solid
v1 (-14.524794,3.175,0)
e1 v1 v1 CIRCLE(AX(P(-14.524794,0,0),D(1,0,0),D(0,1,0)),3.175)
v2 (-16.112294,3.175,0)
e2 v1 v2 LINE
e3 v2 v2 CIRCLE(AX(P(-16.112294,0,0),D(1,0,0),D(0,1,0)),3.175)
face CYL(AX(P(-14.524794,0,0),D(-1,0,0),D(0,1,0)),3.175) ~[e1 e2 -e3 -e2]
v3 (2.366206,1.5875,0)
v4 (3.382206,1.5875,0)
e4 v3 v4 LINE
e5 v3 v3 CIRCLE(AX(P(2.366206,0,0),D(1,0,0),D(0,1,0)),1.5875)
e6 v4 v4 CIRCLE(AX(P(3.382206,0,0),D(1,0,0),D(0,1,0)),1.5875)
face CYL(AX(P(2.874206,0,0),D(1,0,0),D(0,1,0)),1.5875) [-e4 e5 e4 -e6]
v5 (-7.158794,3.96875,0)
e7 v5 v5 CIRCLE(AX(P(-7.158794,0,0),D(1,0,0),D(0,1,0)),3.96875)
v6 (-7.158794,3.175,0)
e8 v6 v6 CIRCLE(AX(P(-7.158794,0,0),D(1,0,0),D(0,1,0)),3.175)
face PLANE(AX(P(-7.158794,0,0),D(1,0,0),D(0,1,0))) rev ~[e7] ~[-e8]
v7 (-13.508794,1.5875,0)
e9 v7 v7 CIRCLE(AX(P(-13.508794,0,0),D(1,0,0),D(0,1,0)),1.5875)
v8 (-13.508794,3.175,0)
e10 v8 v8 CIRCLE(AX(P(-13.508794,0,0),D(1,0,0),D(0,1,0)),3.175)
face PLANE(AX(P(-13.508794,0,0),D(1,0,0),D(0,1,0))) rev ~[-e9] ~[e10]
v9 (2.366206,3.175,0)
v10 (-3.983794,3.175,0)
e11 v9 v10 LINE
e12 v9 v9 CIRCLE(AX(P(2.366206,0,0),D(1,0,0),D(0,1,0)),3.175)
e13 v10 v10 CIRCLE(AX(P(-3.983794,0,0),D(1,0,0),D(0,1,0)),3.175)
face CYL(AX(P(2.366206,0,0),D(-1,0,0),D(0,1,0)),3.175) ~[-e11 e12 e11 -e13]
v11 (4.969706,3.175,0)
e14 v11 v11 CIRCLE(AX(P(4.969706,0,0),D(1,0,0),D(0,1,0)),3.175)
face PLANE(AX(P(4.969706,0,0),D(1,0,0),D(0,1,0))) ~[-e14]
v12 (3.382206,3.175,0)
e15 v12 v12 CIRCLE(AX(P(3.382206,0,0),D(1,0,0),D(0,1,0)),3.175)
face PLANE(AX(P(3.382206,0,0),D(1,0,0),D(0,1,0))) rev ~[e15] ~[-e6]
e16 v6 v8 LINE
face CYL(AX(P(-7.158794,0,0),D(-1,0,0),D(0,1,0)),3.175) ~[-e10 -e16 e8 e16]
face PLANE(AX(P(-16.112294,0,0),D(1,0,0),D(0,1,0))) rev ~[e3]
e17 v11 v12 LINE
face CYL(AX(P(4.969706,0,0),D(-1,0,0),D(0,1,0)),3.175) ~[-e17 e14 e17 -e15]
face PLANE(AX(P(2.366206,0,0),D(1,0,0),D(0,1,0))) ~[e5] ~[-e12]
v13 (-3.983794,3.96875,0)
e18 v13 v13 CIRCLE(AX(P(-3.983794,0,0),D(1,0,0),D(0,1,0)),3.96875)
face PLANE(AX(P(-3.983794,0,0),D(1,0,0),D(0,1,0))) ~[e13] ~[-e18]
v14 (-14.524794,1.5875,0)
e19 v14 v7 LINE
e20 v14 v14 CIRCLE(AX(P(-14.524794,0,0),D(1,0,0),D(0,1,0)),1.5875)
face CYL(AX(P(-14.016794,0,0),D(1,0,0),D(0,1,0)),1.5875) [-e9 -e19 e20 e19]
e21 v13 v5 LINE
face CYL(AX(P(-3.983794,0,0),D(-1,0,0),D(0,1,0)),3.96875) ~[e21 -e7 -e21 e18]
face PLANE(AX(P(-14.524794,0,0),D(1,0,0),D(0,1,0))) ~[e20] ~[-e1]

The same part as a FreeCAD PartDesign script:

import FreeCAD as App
import Part
import Sketcher
from FreeCAD import Vector
Q = App.Units.Quantity


def add_polygon(sketch, points):
    """Adds a closed chain of lines whose ends are joined by coincident constraints."""
    first, n = sketch.GeometryCount, len(points)
    for a, b in zip(points, points[1:] + points[:1]):
        sketch.addGeometry(Part.LineSegment(App.Vector(*a, 0), App.Vector(*b, 0)), False)
    for i in range(n):
        sketch.addConstraint(Sketcher.Constraint("Coincident", first + i, 2, first + (i + 1) % n, 1))

doc = App.newDocument("Part")
body = doc.addObject("PartDesign::Body", "Body")

sketch1 = doc.addObject("Sketcher::SketchObject", "Sketch")
body.addObject(sketch1)
sketch1.AttachmentSupport = (doc.XY_Plane, [""])
sketch1.MapMode = "FlatFace"
add_polygon(sketch1, [(-16.1, 3.2), (-16.1, 0), (5, 0), (5, 3.2), (3.4, 3.2), (3.4, 1.6), (2.4, 1.6), (2.4, 3.2), (-4, 3.2), (-4, 4), (-7.2, 4), (-7.2, 3.2), (-13.5, 3.2), (-13.5, 1.6), (-14.5, 1.6), (-14.5, 3.2)])
sketch1.addConstraint([
    Sketcher.Constraint("Vertical", 0),
    Sketcher.Constraint("Horizontal", 1),
    Sketcher.Constraint("Vertical", 2),
    Sketcher.Constraint("Horizontal", 3),
    Sketcher.Constraint("Vertical", 4),
    Sketcher.Constraint("Horizontal", 5),
    Sketcher.Constraint("Vertical", 6),
    Sketcher.Constraint("Horizontal", 7),
    Sketcher.Constraint("Vertical", 8),
    Sketcher.Constraint("Horizontal", 9),
    Sketcher.Constraint("Vertical", 10),
    Sketcher.Constraint("Horizontal", 11),
    Sketcher.Constraint("Vertical", 12),
    Sketcher.Constraint("Horizontal", 13),
    Sketcher.Constraint("Vertical", 14),
    Sketcher.Constraint("Horizontal", 15),
    Sketcher.Constraint("PointOnObject", 0, 2, -1),
    Sketcher.Constraint("Horizontal", 3, 2, 6, 2),
    Sketcher.Constraint("Horizontal", 7, 2, 10, 2),
    Sketcher.Constraint("Horizontal", 5, 2, 12, 2),
    Sketcher.Constraint("Horizontal", 11, 2, 14, 2),
    Sketcher.Constraint("Equal", 7, 11),
    Sketcher.Constraint("Equal", 5, 13),
    Sketcher.Constraint("Equal", 3, 15),
    Sketcher.Constraint("Equal", 9, 0),
    Sketcher.Constraint("Equal", 15, 4),
    Sketcher.Constraint("DistanceX", 1, 1, 1, 2, Q("0.83 in")),
    Sketcher.Constraint("DistanceX", 5, 2, 5, 1, Q("0.04 in")),
    Sketcher.Constraint("DistanceX", 7, 2, 7, 1, Q("0.25 in")),
    Sketcher.Constraint("DistanceX", 3, 2, 3, 1, Q("0.0625 in")),
    Sketcher.Constraint("DistanceY", 8, 1, 8, 2, Q("0.03125 in")),
    Sketcher.Constraint("DistanceX", 0, 2, -1, 1, 16.112294),
])
revolution = doc.addObject("PartDesign::Revolution", "Revolution")
body.addObject(revolution)
revolution.Profile = sketch1
revolution.ReferenceAxis = (sketch1, ["H_Axis"])
revolution.Angle = 360

doc.recompute()
